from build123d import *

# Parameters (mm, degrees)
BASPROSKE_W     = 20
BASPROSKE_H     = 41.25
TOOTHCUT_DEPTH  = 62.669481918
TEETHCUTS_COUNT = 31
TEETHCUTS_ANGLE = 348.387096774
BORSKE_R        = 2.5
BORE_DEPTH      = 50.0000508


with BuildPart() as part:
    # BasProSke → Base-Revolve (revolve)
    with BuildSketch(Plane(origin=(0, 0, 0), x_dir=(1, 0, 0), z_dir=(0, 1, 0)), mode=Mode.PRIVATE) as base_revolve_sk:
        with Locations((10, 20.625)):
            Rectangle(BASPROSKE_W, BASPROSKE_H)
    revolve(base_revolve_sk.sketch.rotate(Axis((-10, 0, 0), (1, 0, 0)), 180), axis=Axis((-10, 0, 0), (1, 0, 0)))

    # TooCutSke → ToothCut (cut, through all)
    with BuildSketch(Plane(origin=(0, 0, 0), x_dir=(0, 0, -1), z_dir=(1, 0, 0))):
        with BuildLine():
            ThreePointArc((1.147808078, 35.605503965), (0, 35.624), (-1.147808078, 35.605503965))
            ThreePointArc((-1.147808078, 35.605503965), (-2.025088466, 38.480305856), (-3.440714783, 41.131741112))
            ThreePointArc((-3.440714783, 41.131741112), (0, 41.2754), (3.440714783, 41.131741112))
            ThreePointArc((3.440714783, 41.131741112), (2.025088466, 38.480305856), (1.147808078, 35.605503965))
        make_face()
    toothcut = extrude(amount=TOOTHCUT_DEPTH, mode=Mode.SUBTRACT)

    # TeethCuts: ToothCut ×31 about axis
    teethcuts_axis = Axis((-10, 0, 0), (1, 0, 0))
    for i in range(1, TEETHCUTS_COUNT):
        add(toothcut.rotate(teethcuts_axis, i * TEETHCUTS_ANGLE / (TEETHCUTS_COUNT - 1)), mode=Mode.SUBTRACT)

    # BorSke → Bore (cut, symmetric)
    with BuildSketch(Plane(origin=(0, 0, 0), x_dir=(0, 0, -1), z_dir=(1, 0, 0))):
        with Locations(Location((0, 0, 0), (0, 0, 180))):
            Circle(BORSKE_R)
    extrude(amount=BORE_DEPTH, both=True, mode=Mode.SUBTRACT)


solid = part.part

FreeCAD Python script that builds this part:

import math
import FreeCAD as App
import Part
import Sketcher
from FreeCAD import Vector
Q = App.Units.Quantity

doc = App.newDocument("Part")
body = doc.addObject("PartDesign::Body", "Body")

sketch1 = doc.addObject("Sketcher::SketchObject", "Sketch")
body.addObject(sketch1)
sketch1.AttachmentSupport = (doc.XZ_Plane, [""])
sketch1.MapMode = "FlatFace"
sketch1.addGeometry([
    Part.LineSegment(Vector(0, -41, 0), Vector(0, 0, 0)),
    Part.LineSegment(Vector(0, 0, 0), Vector(20, 0, 0)),
    Part.LineSegment(Vector(20, 0, 0), Vector(20, -41, 0)),
    Part.LineSegment(Vector(20, -41, 0), Vector(0, -41, 0)),
], False)
sketch1.addConstraint([
    Sketcher.Constraint("Coincident", 0, 2, 1, 1),
    Sketcher.Constraint("Coincident", 1, 2, 2, 1),
    Sketcher.Constraint("Coincident", 2, 2, 3, 1),
    Sketcher.Constraint("Coincident", 3, 2, 0, 1),
    Sketcher.Constraint("Vertical", 0),
    Sketcher.Constraint("Horizontal", 1),
    Sketcher.Constraint("Vertical", 2),
    Sketcher.Constraint("Horizontal", 3),
    Sketcher.Constraint("Coincident", 0, 2, -1, 1),
    Sketcher.Constraint("DistanceX", 1, 1, 1, 2, Q("20 mm")),
    Sketcher.Constraint("DistanceY", 0, 1, 0, 2, Q("41.25 mm")),
])
revolution = doc.addObject("PartDesign::Revolution", "Revolution")
body.addObject(revolution)
revolution.Profile = sketch1
revolution.ReferenceAxis = (sketch1, ["H_Axis"])
revolution.Angle = 360

sketch2 = doc.addObject("Sketcher::SketchObject", "Sketch001")
body.addObject(sketch2)
sketch2.AttachmentSupport = (doc.YZ_Plane, [""])
sketch2.MapMode = "FlatFace"
sketch2.addGeometry([
    Part.ArcOfCircle(Part.Circle(Vector(0, 0, 0), Vector(0, 0, 1), 35.6), math.radians(-1.85), math.radians(1.85)),
    Part.ArcOfCircle(Part.Circle(Vector(32.5, -16.3, 0), Vector(0, 0, 1), 15.5), math.radians(56), math.radians(79)),
    Part.ArcOfCircle(Part.Circle(Vector(0, 0, 0), Vector(0, 0, 1), 41.3), math.radians(-4.78), math.radians(4.78)),
    Part.ArcOfCircle(Part.Circle(Vector(32.5, 16.3, 0), Vector(0, 0, 1), 15.5), math.radians(-79), math.radians(-56)),
], False)
sketch2.addConstraint([
    Sketcher.Constraint("Coincident", 0, 1, 1, 2),
    Sketcher.Constraint("Coincident", 1, 1, 2, 1),
    Sketcher.Constraint("Coincident", 2, 2, 3, 2),
    Sketcher.Constraint("Coincident", 3, 1, 0, 2),
    Sketcher.Constraint("Coincident", 0, 3, -1, 1),
    Sketcher.Constraint("Coincident", 2, 3, -1, 1),
    Sketcher.Constraint("Equal", 1, 3),
    Sketcher.Constraint("Symmetric", 1, 3, 3, 3, -1),
    Sketcher.Constraint("Radius", 1, Q("15.5 mm")),
    Sketcher.Constraint("Radius", 0, Q("35.624 mm")),
    Sketcher.Constraint("Radius", 2, Q("41.2754 mm")),
    Sketcher.Constraint("DistanceX", -1, 1, 1, 3, Q("32.540169 mm")),
    Sketcher.Constraint("DistanceY", 1, 3, -1, 1, Q("16.341679 mm")),
])
pocket1 = doc.addObject("PartDesign::Pocket", "Pocket")
body.addObject(pocket1)
pocket1.Profile = sketch2
pocket1.Type = "ThroughAll"
pocket1.Reversed = True
doc.recompute()

polarpattern = doc.addObject("PartDesign::PolarPattern", "PolarPattern")
body.addObject(polarpattern)
polarpattern.Originals = [pocket1]
polarpattern.Axis = (doc.X_Axis, [""])
polarpattern.Angle = 360
polarpattern.Occurrences = 31
body.Tip = polarpattern

sketch3 = doc.addObject("Sketcher::SketchObject", "Sketch002")
body.addObject(sketch3)
sketch3.AttachmentSupport = (doc.YZ_Plane, [""])
sketch3.MapMode = "FlatFace"
sketch3.addGeometry(Part.Circle(Vector(0, 0, 0), Vector(0, 0, 1), 2.5), False)
sketch3.addConstraint([
    Sketcher.Constraint("Coincident", 0, 3, -1, 1),
    Sketcher.Constraint("Diameter", 0, Q("5 mm")),
])
pocket2 = doc.addObject("PartDesign::Pocket", "Pocket001")
body.addObject(pocket2)
pocket2.Profile = sketch3
pocket2.Length = 100.000102
pocket2.Midplane = True

doc.recompute()
